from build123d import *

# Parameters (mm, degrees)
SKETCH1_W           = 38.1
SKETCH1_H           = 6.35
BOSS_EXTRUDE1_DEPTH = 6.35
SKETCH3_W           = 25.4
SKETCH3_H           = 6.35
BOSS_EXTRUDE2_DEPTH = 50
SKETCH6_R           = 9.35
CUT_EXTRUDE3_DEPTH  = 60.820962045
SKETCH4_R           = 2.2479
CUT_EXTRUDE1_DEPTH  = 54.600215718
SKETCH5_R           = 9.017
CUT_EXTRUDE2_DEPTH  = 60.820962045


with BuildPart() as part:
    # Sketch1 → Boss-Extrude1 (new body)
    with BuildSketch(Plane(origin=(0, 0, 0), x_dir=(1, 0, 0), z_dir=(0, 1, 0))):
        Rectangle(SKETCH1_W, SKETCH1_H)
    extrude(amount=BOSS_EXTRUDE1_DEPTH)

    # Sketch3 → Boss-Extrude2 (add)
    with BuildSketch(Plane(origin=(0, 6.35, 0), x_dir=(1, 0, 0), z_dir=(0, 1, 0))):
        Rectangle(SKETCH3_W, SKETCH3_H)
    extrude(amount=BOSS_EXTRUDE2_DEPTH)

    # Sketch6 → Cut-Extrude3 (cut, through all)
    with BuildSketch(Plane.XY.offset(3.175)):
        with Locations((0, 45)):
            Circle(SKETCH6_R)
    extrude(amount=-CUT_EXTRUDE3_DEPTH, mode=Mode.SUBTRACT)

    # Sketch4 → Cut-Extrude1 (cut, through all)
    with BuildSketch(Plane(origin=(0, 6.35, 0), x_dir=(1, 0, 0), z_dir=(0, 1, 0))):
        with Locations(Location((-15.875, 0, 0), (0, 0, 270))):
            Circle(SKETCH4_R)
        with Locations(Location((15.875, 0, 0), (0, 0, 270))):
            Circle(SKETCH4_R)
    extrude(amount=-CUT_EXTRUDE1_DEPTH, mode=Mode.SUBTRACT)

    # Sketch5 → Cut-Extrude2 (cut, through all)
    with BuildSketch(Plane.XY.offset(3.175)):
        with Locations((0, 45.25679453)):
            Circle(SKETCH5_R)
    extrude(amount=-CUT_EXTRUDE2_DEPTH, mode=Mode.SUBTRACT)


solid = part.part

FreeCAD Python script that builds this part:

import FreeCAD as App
import Part
import Sketcher
from FreeCAD import Vector
Q = App.Units.Quantity


def add_polygon(sketch, points):
    """Adds a closed chain of lines whose ends are joined by coincident constraints."""
    first, n = sketch.GeometryCount, len(points)
    for a, b in zip(points, points[1:] + points[:1]):
        sketch.addGeometry(Part.LineSegment(App.Vector(*a, 0), App.Vector(*b, 0)), False)
    for i in range(n):
        sketch.addConstraint(Sketcher.Constraint("Coincident", first + i, 2, first + (i + 1) % n, 1))

doc = App.newDocument("Part")
body = doc.addObject("PartDesign::Body", "Body")

# Sketch on XZ plane
sketch1 = body.newObject("Sketcher::SketchObject", "Sketch")
sketch1.AttachmentSupport = (doc.getObject("XZ_Plane"), [""])
sketch1.MapMode = "FlatFace"
add_polygon(sketch1, [(-19.05, -3.175), (-19.05, 3.175), (19.05, 3.175), (19.05, -3.175)])  # lines 0-3
sketch1.addConstraint(Sketcher.Constraint("Vertical", 0))
sketch1.addConstraint(Sketcher.Constraint("Horizontal", 1))
sketch1.addConstraint(Sketcher.Constraint("Vertical", 2))
sketch1.addConstraint(Sketcher.Constraint("Horizontal", 3))
sketch1.addConstraint(Sketcher.Constraint("Symmetric", 0, 2, 2, 2, -1, 1))
sketch1.addConstraint(Sketcher.Constraint("DistanceX", 1, 1, 1, 2, Q("1.5 in")))
sketch1.addConstraint(Sketcher.Constraint("DistanceY", 0, 1, 0, 2, Q("0.25 in")))
pad1 = body.newObject("PartDesign::Pad", "Pad")
pad1.Profile = sketch1
pad1.Length = Q("0.25 in")
pad1.Reversed = True

# Sketch on XZ plane
sketch2 = body.newObject("Sketcher::SketchObject", "Sketch001")
sketch2.AttachmentSupport = (doc.getObject("XZ_Plane"), [""])
sketch2.MapMode = "FlatFace"
sketch2.AttachmentOffset = App.Placement(Vector(0, 0, -0.25 * 25.4), App.Rotation())
add_polygon(sketch2, [(-12.7, -3.175), (-12.7, 3.175), (12.7, 3.175), (12.7, -3.175)])  # lines 0-3
sketch2.addConstraint(Sketcher.Constraint("Vertical", 0))
sketch2.addConstraint(Sketcher.Constraint("Horizontal", 1))
sketch2.addConstraint(Sketcher.Constraint("Vertical", 2))
sketch2.addConstraint(Sketcher.Constraint("Horizontal", 3))
sketch2.addConstraint(Sketcher.Constraint("Symmetric", 0, 2, 2, 2, -1, 1))
sketch2.addConstraint(Sketcher.Constraint("DistanceX", 1, 1, 1, 2, Q("1 in")))
sketch2.addConstraint(Sketcher.Constraint("DistanceY", 0, 1, 0, 2, Q("0.25 in")))
pad2 = body.newObject("PartDesign::Pad", "Pad001")
pad2.Profile = sketch2
pad2.Length = 50
pad2.Reversed = True

# Sketch on XY plane
sketch3 = body.newObject("Sketcher::SketchObject", "Sketch002")
sketch3.AttachmentSupport = (doc.getObject("XY_Plane"), [""])
sketch3.MapMode = "FlatFace"
sketch3.AttachmentOffset = App.Placement(Vector(0, 0, 0.125 * 25.4), App.Rotation())
sketch3.addGeometry(Part.Circle(Vector(0, 45, 0), Vector(0, 0, 1), 9.35), False)
sketch3.addConstraint(Sketcher.Constraint("PointOnObject", 0, 3, -2))
sketch3.addConstraint(Sketcher.Constraint("Diameter", 0, Q("18.7 mm")))
sketch3.addConstraint(Sketcher.Constraint("DistanceY", -1, 1, 0, 3, Q("45 mm")))
pocket1 = body.newObject("PartDesign::Pocket", "Pocket")
pocket1.Profile = sketch3
pocket1.Type = "ThroughAll"

# Sketch on XZ plane
sketch4 = body.newObject("Sketcher::SketchObject", "Sketch003")
sketch4.AttachmentSupport = (doc.getObject("XZ_Plane"), [""])
sketch4.MapMode = "FlatFace"
sketch4.AttachmentOffset = App.Placement(Vector(0, 0, -0.25 * 25.4), App.Rotation())
sketch4.addGeometry(Part.Circle(Vector(-15.875, 0, 0), Vector(0, 0, 1), 2.2479), False)
sketch4.addGeometry(Part.Circle(Vector(15.875, 0, 0), Vector(0, 0, 1), 2.2479), False)
sketch4.addConstraint(Sketcher.Constraint("Equal", 0, 1))
sketch4.addConstraint(Sketcher.Constraint("Symmetric", 0, 3, 1, 3, -1, 1))
sketch4.addConstraint(Sketcher.Constraint("PointOnObject", 0, 3, -1))
sketch4.addConstraint(Sketcher.Constraint("Diameter", 0, Q("0.177 in")))
sketch4.addConstraint(Sketcher.Constraint("DistanceX", 0, 3, 1, 3, Q("1.25 in")))
pocket2 = body.newObject("PartDesign::Pocket", "Pocket001")
pocket2.Profile = sketch4
pocket2.Type = "ThroughAll"
pocket2.Reversed = True

# Sketch on XY plane
sketch5 = body.newObject("Sketcher::SketchObject", "Sketch004")
sketch5.AttachmentSupport = (doc.getObject("XY_Plane"), [""])
sketch5.MapMode = "FlatFace"
sketch5.AttachmentOffset = App.Placement(Vector(0, 0, 0.125 * 25.4), App.Rotation())
sketch5.addGeometry(Part.Circle(Vector(0, 45.256795, 0), Vector(0, 0, 1), 9.017), False)
sketch5.addConstraint(Sketcher.Constraint("PointOnObject", 0, 3, -2))
sketch5.addConstraint(Sketcher.Constraint("Diameter", 0, Q("0.71 in")))
sketch5.addConstraint(Sketcher.Constraint("DistanceY", -1, 1, 0, 3, Q("45.256795 mm")))
pocket3 = body.newObject("PartDesign::Pocket", "Pocket002")
pocket3.Profile = sketch5
pocket3.Type = "ThroughAll"

doc.recompute()
